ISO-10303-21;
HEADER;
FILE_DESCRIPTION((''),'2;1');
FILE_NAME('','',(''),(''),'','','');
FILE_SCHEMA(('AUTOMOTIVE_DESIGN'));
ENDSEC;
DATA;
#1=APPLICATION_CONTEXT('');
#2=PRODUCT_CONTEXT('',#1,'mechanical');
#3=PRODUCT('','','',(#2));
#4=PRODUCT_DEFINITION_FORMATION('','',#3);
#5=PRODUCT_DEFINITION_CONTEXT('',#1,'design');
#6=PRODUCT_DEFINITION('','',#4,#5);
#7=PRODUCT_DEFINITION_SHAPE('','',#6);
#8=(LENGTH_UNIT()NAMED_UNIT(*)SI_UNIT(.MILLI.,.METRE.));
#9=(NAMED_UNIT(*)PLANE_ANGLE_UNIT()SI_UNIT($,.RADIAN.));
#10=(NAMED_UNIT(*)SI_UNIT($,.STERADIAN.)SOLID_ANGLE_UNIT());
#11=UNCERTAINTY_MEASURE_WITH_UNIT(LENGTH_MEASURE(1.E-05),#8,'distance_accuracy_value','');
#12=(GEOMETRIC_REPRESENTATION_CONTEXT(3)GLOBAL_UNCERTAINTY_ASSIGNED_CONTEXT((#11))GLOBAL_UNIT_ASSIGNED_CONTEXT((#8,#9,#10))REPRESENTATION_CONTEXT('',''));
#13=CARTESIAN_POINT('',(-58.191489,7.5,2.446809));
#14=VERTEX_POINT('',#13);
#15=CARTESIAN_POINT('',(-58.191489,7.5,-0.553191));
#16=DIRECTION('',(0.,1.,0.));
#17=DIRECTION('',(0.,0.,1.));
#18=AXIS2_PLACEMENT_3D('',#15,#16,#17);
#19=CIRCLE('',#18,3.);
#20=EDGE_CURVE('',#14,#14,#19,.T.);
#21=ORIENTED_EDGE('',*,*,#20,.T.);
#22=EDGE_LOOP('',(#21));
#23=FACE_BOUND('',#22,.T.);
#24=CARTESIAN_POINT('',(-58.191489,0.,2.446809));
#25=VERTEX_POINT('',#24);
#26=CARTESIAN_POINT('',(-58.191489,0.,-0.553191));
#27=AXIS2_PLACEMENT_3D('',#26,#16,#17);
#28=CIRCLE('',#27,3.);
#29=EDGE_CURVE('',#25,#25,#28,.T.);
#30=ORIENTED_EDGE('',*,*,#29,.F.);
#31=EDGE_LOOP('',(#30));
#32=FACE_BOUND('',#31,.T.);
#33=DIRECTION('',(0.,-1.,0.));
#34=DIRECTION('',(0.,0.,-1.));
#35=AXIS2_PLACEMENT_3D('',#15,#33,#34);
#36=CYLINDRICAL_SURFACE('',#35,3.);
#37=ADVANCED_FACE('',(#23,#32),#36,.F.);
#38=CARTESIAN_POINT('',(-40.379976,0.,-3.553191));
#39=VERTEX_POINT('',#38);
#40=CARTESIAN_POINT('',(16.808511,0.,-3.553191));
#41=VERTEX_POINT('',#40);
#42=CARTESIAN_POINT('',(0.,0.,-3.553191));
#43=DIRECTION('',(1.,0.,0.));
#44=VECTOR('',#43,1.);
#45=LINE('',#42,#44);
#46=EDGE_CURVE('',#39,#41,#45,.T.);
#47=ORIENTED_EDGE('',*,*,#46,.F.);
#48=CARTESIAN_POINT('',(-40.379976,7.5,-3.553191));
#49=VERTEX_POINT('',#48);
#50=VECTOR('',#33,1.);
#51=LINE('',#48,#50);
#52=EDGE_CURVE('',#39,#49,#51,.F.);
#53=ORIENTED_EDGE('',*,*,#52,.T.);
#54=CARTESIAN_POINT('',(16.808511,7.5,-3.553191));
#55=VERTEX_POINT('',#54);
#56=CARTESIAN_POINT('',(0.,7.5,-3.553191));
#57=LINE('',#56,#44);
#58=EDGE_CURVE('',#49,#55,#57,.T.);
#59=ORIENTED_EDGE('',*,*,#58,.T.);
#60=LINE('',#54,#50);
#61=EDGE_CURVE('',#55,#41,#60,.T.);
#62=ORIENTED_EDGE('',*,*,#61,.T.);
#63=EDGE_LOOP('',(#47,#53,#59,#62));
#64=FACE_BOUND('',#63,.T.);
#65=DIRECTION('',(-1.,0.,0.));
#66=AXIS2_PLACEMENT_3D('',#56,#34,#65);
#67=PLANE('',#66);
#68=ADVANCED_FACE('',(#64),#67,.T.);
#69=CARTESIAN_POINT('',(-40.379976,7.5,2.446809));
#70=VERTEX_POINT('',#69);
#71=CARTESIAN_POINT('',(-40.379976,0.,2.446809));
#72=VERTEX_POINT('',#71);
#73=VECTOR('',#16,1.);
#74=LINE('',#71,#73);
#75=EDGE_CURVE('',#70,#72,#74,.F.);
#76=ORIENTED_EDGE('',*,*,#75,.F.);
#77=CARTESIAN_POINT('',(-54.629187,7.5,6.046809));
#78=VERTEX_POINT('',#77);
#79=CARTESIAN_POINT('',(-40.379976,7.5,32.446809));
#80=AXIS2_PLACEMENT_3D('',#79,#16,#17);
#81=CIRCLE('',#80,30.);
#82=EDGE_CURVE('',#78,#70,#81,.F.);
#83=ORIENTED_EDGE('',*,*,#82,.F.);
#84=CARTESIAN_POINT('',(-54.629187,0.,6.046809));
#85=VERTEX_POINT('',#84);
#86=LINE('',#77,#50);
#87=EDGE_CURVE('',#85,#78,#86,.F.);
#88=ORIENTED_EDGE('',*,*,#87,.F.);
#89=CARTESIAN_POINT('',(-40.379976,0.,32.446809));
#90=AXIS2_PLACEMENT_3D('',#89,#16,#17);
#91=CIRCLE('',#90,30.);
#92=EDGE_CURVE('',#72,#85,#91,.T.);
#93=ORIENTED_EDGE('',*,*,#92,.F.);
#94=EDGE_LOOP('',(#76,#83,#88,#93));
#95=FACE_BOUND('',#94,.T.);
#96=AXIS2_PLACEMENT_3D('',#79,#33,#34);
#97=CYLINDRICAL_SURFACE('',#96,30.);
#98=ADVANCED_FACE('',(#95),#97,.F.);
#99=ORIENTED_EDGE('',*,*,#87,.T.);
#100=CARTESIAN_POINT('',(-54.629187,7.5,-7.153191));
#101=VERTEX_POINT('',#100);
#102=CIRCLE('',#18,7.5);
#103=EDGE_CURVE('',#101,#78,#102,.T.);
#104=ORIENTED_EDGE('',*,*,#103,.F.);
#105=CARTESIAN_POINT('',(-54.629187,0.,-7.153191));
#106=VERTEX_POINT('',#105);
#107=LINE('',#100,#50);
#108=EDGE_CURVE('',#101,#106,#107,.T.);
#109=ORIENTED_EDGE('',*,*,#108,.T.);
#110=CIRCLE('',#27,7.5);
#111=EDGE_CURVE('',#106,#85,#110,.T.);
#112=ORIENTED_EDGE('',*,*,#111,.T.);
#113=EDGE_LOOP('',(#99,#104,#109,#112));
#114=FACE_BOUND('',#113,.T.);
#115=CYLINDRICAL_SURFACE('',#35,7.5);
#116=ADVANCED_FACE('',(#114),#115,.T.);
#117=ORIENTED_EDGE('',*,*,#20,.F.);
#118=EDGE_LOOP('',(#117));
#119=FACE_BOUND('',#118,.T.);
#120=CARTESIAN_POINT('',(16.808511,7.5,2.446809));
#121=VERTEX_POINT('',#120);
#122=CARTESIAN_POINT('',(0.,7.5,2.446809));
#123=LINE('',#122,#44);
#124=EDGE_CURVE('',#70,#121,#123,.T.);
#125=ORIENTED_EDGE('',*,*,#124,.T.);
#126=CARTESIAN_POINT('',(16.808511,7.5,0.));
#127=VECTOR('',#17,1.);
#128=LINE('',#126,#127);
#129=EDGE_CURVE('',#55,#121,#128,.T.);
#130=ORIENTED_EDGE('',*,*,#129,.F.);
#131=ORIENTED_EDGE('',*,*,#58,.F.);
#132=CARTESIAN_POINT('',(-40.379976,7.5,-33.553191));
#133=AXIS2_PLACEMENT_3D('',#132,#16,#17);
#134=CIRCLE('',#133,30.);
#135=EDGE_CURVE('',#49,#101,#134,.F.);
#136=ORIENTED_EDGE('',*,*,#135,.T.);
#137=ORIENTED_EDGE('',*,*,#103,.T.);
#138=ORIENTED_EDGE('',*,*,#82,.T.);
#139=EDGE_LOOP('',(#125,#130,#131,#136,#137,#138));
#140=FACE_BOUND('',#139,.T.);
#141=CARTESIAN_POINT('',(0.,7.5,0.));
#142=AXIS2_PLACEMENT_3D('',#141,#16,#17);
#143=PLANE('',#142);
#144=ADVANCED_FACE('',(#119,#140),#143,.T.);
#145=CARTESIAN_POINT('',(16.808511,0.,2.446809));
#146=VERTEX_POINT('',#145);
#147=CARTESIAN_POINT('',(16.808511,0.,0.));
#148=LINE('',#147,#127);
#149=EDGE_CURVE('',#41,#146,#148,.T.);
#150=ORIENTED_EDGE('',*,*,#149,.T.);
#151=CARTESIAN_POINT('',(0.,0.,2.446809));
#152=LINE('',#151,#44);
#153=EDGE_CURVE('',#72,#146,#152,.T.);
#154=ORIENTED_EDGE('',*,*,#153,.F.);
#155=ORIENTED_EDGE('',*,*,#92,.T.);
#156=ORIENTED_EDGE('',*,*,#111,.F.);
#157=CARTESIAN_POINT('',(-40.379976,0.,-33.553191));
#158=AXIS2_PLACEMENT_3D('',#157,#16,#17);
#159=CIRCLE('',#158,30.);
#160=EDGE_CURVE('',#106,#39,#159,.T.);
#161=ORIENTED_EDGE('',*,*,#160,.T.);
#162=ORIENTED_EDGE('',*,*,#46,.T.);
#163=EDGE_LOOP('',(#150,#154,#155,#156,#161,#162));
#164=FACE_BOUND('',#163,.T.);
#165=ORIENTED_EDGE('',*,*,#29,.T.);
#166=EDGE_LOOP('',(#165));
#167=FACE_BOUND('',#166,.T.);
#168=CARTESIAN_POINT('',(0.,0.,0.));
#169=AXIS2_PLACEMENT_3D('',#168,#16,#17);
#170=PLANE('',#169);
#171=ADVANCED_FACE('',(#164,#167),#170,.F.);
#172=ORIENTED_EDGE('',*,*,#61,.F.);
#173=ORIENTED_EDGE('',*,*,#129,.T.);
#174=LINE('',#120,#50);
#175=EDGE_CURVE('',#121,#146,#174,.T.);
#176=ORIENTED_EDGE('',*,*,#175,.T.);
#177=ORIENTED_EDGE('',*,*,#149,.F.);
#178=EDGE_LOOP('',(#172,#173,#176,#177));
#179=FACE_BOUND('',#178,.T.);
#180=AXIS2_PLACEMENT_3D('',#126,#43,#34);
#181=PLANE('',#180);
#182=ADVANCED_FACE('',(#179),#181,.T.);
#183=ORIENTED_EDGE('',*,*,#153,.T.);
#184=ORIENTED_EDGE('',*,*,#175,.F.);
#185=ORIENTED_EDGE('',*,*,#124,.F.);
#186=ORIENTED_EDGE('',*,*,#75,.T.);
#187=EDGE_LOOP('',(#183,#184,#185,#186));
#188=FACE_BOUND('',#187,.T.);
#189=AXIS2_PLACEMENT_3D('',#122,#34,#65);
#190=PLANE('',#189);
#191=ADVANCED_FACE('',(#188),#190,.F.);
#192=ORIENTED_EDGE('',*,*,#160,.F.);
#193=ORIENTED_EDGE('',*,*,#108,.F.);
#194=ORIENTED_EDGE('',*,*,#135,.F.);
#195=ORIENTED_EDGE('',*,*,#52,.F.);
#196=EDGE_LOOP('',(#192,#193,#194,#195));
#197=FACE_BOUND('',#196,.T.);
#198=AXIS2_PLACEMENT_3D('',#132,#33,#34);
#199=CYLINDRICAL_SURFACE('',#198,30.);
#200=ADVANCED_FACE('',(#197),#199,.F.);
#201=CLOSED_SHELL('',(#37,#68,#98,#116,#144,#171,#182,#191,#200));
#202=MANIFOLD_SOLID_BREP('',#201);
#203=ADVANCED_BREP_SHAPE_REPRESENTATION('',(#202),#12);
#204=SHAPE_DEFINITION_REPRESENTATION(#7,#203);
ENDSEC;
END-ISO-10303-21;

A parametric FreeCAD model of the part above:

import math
import FreeCAD as App
import Part
import Sketcher
Q = App.Units.Quantity


def edges_at(feature, points):
    """Names of the edges that pass closest to the given points."""
    edges = feature.Shape.Edges
    near = lambda p: min(range(len(edges)), key=lambda i: edges[i].distToShape(Part.Vertex(*p))[0])
    return sorted({f"Edge{near(p) + 1}" for p in points})

doc = App.newDocument("Part")
body = doc.addObject("PartDesign::Body", "Body")

# Sketch on XZ plane
sketch1 = body.newObject("Sketcher::SketchObject", "Sketch")
sketch1.AttachmentSupport = (doc.getObject("XZ_Plane"), [""])
sketch1.MapMode = "FlatFace"
sketch1.addGeometry(Part.ArcOfCircle(Part.Circle(App.Vector(-58.2, -0.6, 0), App.Vector(0, 0, 1), 7.5), math.radians(24), math.radians(336)), False)
sketch1.addGeometry(Part.LineSegment(App.Vector(-51.3, 2.4, 0), App.Vector(16.8, 2.4, 0)), False)
sketch1.addGeometry(Part.LineSegment(App.Vector(16.8, 2.4, 0), App.Vector(16.8, -3.6, 0)), False)
sketch1.addGeometry(Part.LineSegment(App.Vector(16.8, -3.6, 0), App.Vector(-51.3, -3.6, 0)), False)
sketch1.addGeometry(Part.ArcOfCircle(Part.Circle(App.Vector(-58.2, -0.6, 0), App.Vector(0, 0, 1), 3), math.radians(90), math.radians(270)), False)
sketch1.addGeometry(Part.ArcOfCircle(Part.Circle(App.Vector(-58.2, -0.6, 0), App.Vector(0, 0, 1), 3), math.radians(-90), math.radians(0)), False)
sketch1.addGeometry(Part.ArcOfCircle(Part.Circle(App.Vector(-58.2, -0.6, 0), App.Vector(0, 0, 1), 3), math.radians(0), math.radians(90)), False)
sketch1.addConstraint(Sketcher.Constraint("Coincident", 0, 1, 1, 1))
sketch1.addConstraint(Sketcher.Constraint("Coincident", 1, 2, 2, 1))
sketch1.addConstraint(Sketcher.Constraint("Coincident", 2, 2, 3, 1))
sketch1.addConstraint(Sketcher.Constraint("Coincident", 3, 2, 0, 2))
sketch1.addConstraint(Sketcher.Constraint("Tangent", 4, 2, 5, 1))
sketch1.addConstraint(Sketcher.Constraint("Tangent", 5, 2, 6, 1))
sketch1.addConstraint(Sketcher.Constraint("Tangent", 6, 2, 4, 1))
sketch1.addConstraint(Sketcher.Constraint("Horizontal", 1))
sketch1.addConstraint(Sketcher.Constraint("Vertical", 2))
sketch1.addConstraint(Sketcher.Constraint("Horizontal", 3))
sketch1.addConstraint(Sketcher.Constraint("Coincident", 4, 3, 0, 3))
sketch1.addConstraint(Sketcher.Constraint("Horizontal", 3, 2, 4, 2))
sketch1.addConstraint(Sketcher.Constraint("Horizontal", 6, 3, 5, 2))
sketch1.addConstraint(Sketcher.Constraint("Horizontal", 1, 2, 6, 2))
sketch1.addConstraint(Sketcher.Constraint("Vertical", 6, 3, 4, 2))
sketch1.addConstraint(Sketcher.Constraint("Vertical", 4, 2, 6, 2))
sketch1.addConstraint(Sketcher.Constraint("Radius", 4, Q("3 mm")))
sketch1.addConstraint(Sketcher.Constraint("Radius", 0, Q("7.5 mm")))
sketch1.addConstraint(Sketcher.Constraint("DistanceX", 5, 3, 1, 2, Q("75 mm")))
sketch1.addConstraint(Sketcher.Constraint("DistanceX", 0, 3, -1, 1, Q("58.191489 mm")))
sketch1.addConstraint(Sketcher.Constraint("DistanceY", 0, 3, -1, 1, Q("0.553191 mm")))
pad1 = body.newObject("PartDesign::Pad", "Pad")
pad1.Profile = sketch1
pad1.Length = 7.5
pad1.Reversed = True
doc.recompute()

fillet = body.newObject("PartDesign::Fillet", "Fillet")
fillet.Base = (pad1, edges_at(pad1, [(-51.318, 3.75, 2.447)]))
fillet.Radius = 30
doc.recompute()

fillet2 = body.newObject("PartDesign::Fillet", "Fillet001")
fillet2.Base = (fillet, edges_at(fillet, [(-51.318, 3.75, -3.553)]))
fillet2.Radius = 30

doc.recompute()
